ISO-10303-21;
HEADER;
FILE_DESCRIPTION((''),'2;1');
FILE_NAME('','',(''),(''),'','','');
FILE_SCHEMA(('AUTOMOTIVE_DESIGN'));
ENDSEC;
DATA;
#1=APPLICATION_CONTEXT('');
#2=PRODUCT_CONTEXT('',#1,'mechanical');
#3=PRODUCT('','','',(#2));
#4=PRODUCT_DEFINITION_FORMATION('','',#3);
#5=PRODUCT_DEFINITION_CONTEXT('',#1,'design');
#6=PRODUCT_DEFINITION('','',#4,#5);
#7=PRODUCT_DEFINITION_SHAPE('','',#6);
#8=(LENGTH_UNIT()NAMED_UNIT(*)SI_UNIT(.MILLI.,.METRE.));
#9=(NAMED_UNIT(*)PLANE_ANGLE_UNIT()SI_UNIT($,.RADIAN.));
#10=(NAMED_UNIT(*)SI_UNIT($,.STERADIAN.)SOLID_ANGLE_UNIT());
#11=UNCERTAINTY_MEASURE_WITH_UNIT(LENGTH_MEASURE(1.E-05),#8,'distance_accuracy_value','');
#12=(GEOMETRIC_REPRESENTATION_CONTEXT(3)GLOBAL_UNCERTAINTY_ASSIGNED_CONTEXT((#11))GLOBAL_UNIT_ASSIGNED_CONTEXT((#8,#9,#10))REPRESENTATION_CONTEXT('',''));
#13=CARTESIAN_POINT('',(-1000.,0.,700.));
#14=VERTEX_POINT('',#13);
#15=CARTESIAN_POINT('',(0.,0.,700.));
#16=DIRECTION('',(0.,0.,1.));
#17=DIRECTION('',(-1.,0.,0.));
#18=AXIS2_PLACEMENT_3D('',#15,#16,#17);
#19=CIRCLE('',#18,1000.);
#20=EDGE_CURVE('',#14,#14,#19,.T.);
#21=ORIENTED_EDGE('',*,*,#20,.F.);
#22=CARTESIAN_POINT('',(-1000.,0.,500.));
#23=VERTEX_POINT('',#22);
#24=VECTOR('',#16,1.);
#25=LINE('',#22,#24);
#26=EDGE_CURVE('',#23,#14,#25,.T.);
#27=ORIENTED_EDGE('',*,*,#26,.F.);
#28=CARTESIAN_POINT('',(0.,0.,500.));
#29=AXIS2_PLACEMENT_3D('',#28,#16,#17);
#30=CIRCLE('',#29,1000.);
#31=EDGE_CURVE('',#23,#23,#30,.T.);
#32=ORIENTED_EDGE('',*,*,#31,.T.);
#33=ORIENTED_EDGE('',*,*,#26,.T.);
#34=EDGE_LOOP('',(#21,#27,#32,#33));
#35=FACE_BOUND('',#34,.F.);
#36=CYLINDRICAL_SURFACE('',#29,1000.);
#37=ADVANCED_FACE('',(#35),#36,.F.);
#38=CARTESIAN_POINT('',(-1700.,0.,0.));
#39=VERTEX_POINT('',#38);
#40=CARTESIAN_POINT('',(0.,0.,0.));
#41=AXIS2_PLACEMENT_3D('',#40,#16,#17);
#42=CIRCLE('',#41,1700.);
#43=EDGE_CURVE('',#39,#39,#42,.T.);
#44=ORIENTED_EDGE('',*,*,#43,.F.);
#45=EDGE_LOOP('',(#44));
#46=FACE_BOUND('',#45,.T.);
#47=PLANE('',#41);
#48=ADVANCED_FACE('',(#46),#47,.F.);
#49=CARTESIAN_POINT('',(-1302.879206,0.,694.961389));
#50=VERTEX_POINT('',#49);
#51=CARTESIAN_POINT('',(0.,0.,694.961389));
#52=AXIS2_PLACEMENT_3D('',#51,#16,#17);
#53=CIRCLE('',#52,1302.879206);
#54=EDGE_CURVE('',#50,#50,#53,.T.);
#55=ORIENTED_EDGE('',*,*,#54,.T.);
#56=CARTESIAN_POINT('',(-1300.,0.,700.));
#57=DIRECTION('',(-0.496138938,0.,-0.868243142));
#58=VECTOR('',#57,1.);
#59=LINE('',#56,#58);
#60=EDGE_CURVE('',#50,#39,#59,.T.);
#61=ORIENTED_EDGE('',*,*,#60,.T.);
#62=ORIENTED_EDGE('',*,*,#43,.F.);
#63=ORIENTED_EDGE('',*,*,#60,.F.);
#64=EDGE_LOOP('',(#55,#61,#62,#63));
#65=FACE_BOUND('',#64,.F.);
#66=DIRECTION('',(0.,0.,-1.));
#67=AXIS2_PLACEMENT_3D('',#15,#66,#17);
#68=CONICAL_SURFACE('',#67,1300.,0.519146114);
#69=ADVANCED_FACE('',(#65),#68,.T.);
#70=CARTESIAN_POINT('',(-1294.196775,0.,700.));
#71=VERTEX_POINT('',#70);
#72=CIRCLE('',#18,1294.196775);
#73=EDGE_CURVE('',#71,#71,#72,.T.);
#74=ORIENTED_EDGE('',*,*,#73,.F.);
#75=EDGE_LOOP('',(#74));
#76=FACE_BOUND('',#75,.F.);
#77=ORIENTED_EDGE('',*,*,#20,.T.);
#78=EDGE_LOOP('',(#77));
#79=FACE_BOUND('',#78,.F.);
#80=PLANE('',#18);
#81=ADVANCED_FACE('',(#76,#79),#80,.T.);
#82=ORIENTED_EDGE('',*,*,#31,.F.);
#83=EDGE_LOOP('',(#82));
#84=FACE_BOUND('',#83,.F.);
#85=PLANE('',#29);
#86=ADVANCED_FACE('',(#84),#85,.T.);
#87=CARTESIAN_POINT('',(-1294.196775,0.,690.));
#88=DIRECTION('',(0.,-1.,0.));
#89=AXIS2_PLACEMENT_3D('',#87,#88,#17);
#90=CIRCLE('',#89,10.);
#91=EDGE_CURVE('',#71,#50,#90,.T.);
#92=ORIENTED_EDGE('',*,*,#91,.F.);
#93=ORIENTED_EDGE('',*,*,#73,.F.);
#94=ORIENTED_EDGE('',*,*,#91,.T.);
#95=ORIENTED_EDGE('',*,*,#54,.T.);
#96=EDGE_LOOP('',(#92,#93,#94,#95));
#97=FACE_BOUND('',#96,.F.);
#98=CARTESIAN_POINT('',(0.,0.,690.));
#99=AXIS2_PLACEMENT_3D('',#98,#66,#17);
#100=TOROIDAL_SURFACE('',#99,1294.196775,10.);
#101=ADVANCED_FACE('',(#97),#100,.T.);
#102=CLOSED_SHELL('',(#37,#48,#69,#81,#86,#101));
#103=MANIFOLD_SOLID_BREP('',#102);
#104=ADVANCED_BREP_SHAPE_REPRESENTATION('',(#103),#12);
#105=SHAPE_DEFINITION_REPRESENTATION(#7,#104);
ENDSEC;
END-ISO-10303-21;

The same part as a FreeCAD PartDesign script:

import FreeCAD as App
import Part
import Sketcher

V = App.Vector
Q = App.Units.Quantity


def edges_at(feature, points):
    """Names of the edges that pass closest to the given points."""
    edges = feature.Shape.Edges
    near = lambda p: min(range(len(edges)), key=lambda i: edges[i].distToShape(Part.Vertex(*p))[0])
    return sorted({f"Edge{near(p) + 1}" for p in points})


def add_polygon(sketch, points):
    """Adds a closed chain of lines whose ends are joined by coincident constraints."""
    first, n = sketch.GeometryCount, len(points)
    for a, b in zip(points, points[1:] + points[:1]):
        sketch.addGeometry(Part.LineSegment(App.Vector(*a, 0), App.Vector(*b, 0)), False)
    for i in range(n):
        sketch.addConstraint(Sketcher.Constraint("Coincident", first + i, 2, first + (i + 1) % n, 1))

doc = App.newDocument("Part")
body = doc.addObject("PartDesign::Body", "Body")

# Sketch on XZ plane
sketch1 = body.newObject("Sketcher::SketchObject", "Sketch")
sketch1.AttachmentSupport = (doc.getObject("XZ_Plane"), [""])
sketch1.MapMode = "FlatFace"
add_polygon(sketch1, [(0, 500), (0, 0), (-1700, 0), (-1300, 700), (-1000, 700), (-1000, 500)])  # lines 0-5
sketch1.addConstraint(Sketcher.Constraint("Vertical", 0))
sketch1.addConstraint(Sketcher.Constraint("Horizontal", 1))
sketch1.addConstraint(Sketcher.Constraint("Horizontal", 3))
sketch1.addConstraint(Sketcher.Constraint("Vertical", 4))
sketch1.addConstraint(Sketcher.Constraint("Horizontal", 5))
sketch1.addConstraint(Sketcher.Constraint("Coincident", 0, 2, -1, 1))
sketch1.addConstraint(Sketcher.Constraint("DistanceX", 1, 2, 1, 1, Q("1700 mm")))
sketch1.addConstraint(Sketcher.Constraint("DistanceX", 3, 1, 3, 2, Q("300 mm")))
sketch1.addConstraint(Sketcher.Constraint("DistanceX", 5, 1, 5, 2, Q("1000 mm")))
sketch1.addConstraint(Sketcher.Constraint("DistanceY", 0, 2, 0, 1, Q("500 mm")))
sketch1.addConstraint(Sketcher.Constraint("DistanceY", 4, 2, 4, 1, Q("200 mm")))
revolution = body.newObject("PartDesign::Revolution", "Revolution")
revolution.Profile = sketch1
revolution.ReferenceAxis = (sketch1, ["V_Axis"])
revolution.Angle = 360
doc.recompute()

fillet = body.newObject("PartDesign::Fillet", "Fillet")
fillet.Base = (revolution, edges_at(revolution, [(1300, 0, 700)]))
fillet.Radius = 10

doc.recompute()
